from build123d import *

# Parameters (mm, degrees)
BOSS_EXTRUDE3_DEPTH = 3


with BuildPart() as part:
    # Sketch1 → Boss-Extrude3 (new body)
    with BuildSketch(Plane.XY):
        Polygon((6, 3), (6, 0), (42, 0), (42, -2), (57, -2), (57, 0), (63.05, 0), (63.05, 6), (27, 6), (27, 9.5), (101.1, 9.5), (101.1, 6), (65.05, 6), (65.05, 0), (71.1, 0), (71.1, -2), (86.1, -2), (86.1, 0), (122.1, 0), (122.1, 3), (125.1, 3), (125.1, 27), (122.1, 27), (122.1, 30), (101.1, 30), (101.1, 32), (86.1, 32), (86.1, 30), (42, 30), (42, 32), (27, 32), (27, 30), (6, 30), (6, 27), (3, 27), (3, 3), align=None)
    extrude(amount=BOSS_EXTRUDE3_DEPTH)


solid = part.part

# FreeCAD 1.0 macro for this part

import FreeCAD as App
import Part
import Sketcher

doc = App.newDocument("Part")
params = doc.addObject("Spreadsheet::Sheet", "Params")
for row, (alias, value) in enumerate([
    ("sketch1_width", "36 mm"),
    ("sketch1_width2", "15 mm"),
    ("sketch1_width3", "3 mm"),
    ("sketch1_height", "2 mm"),
    ("sketch1_height2", "6 mm"),
    ("pad1_length", "3 mm"),
], start=1):
    params.set(f"A{row}", alias)
    params.set(f"B{row}", "=" + value)
    params.setAlias(f"B{row}", alias)

body = doc.addObject("PartDesign::Body", "Body")

# Sketch on XY plane
sketch1 = doc.addObject("Sketcher::SketchObject", "Sketch")
body.addObject(sketch1)
sketch1.AttachmentSupport = (doc.XY_Plane, [""])
sketch1.MapMode = "FlatFace"
sketch1.addGeometry([
    Part.LineSegment(App.Vector(6, 3, 0), App.Vector(6, 0, 0)),  # 0
    Part.LineSegment(App.Vector(6, 0, 0), App.Vector(42, 0, 0)),  # 1
    Part.LineSegment(App.Vector(42, 0, 0), App.Vector(42, -2, 0)),  # 2
    Part.LineSegment(App.Vector(42, -2, 0), App.Vector(57, -2, 0)),  # 3
    Part.LineSegment(App.Vector(57, -2, 0), App.Vector(57, 0, 0)),  # 4
    Part.LineSegment(App.Vector(57, 0, 0), App.Vector(63, 0, 0)),  # 5
    Part.LineSegment(App.Vector(63, 0, 0), App.Vector(63, 6, 0)),  # 6
    Part.LineSegment(App.Vector(63, 6, 0), App.Vector(27, 6, 0)),  # 7
    Part.LineSegment(App.Vector(27, 6, 0), App.Vector(27, 9.5, 0)),  # 8
    Part.LineSegment(App.Vector(27, 9.5, 0), App.Vector(101.1, 9.5, 0)),  # 9
    Part.LineSegment(App.Vector(101.1, 9.5, 0), App.Vector(101.1, 6, 0)),  # 10
    Part.LineSegment(App.Vector(101.1, 6, 0), App.Vector(65, 6, 0)),  # 11
    Part.LineSegment(App.Vector(65, 6, 0), App.Vector(65, 0, 0)),  # 12
    Part.LineSegment(App.Vector(65, 0, 0), App.Vector(71.1, 0, 0)),  # 13
    Part.LineSegment(App.Vector(71.1, 0, 0), App.Vector(71.1, -2, 0)),  # 14
    Part.LineSegment(App.Vector(71.1, -2, 0), App.Vector(86.1, -2, 0)),  # 15
    Part.LineSegment(App.Vector(86.1, -2, 0), App.Vector(86.1, 0, 0)),  # 16
    Part.LineSegment(App.Vector(86.1, 0, 0), App.Vector(122.1, 0, 0)),  # 17
    Part.LineSegment(App.Vector(122.1, 0, 0), App.Vector(122.1, 3, 0)),  # 18
    Part.LineSegment(App.Vector(122.1, 3, 0), App.Vector(125.1, 3, 0)),  # 19
    Part.LineSegment(App.Vector(125.1, 3, 0), App.Vector(125.1, 27, 0)),  # 20
    Part.LineSegment(App.Vector(125.1, 27, 0), App.Vector(122.1, 27, 0)),  # 21
    Part.LineSegment(App.Vector(122.1, 27, 0), App.Vector(122.1, 30, 0)),  # 22
    Part.LineSegment(App.Vector(122.1, 30, 0), App.Vector(101.1, 30, 0)),  # 23
    Part.LineSegment(App.Vector(101.1, 30, 0), App.Vector(101.1, 32, 0)),  # 24
    Part.LineSegment(App.Vector(101.1, 32, 0), App.Vector(86.1, 32, 0)),  # 25
    Part.LineSegment(App.Vector(86.1, 32, 0), App.Vector(86.1, 30, 0)),  # 26
    Part.LineSegment(App.Vector(86.1, 30, 0), App.Vector(42, 30, 0)),  # 27
    Part.LineSegment(App.Vector(42, 30, 0), App.Vector(42, 32, 0)),  # 28
    Part.LineSegment(App.Vector(42, 32, 0), App.Vector(27, 32, 0)),  # 29
    Part.LineSegment(App.Vector(27, 32, 0), App.Vector(27, 30, 0)),  # 30
    Part.LineSegment(App.Vector(27, 30, 0), App.Vector(6, 30, 0)),  # 31
    Part.LineSegment(App.Vector(6, 30, 0), App.Vector(6, 27, 0)),  # 32
    Part.LineSegment(App.Vector(6, 27, 0), App.Vector(3, 27, 0)),  # 33
    Part.LineSegment(App.Vector(3, 27, 0), App.Vector(3, 3, 0)),  # 34
    Part.LineSegment(App.Vector(3, 3, 0), App.Vector(6, 3, 0)),  # 35
], False)
sketch1.addConstraint([
    Sketcher.Constraint("Coincident", 0, 2, 1, 1),
    Sketcher.Constraint("Coincident", 1, 2, 2, 1),
    Sketcher.Constraint("Coincident", 2, 2, 3, 1),
    Sketcher.Constraint("Coincident", 3, 2, 4, 1),
    Sketcher.Constraint("Coincident", 4, 2, 5, 1),
    Sketcher.Constraint("Coincident", 5, 2, 6, 1),
    Sketcher.Constraint("Coincident", 6, 2, 7, 1),
    Sketcher.Constraint("Coincident", 7, 2, 8, 1),
    Sketcher.Constraint("Coincident", 8, 2, 9, 1),
    Sketcher.Constraint("Coincident", 9, 2, 10, 1),
    Sketcher.Constraint("Coincident", 10, 2, 11, 1),
    Sketcher.Constraint("Coincident", 11, 2, 12, 1),
    Sketcher.Constraint("Coincident", 12, 2, 13, 1),
    Sketcher.Constraint("Coincident", 13, 2, 14, 1),
    Sketcher.Constraint("Coincident", 14, 2, 15, 1),
    Sketcher.Constraint("Coincident", 15, 2, 16, 1),
    Sketcher.Constraint("Coincident", 16, 2, 17, 1),
    Sketcher.Constraint("Coincident", 17, 2, 18, 1),
    Sketcher.Constraint("Coincident", 18, 2, 19, 1),
    Sketcher.Constraint("Coincident", 19, 2, 20, 1),
    Sketcher.Constraint("Coincident", 20, 2, 21, 1),
    Sketcher.Constraint("Coincident", 21, 2, 22, 1),
    Sketcher.Constraint("Coincident", 22, 2, 23, 1),
    Sketcher.Constraint("Coincident", 23, 2, 24, 1),
    Sketcher.Constraint("Coincident", 24, 2, 25, 1),
    Sketcher.Constraint("Coincident", 25, 2, 26, 1),
    Sketcher.Constraint("Coincident", 26, 2, 27, 1),
    Sketcher.Constraint("Coincident", 27, 2, 28, 1),
    Sketcher.Constraint("Coincident", 28, 2, 29, 1),
    Sketcher.Constraint("Coincident", 29, 2, 30, 1),
    Sketcher.Constraint("Coincident", 30, 2, 31, 1),
    Sketcher.Constraint("Coincident", 31, 2, 32, 1),
    Sketcher.Constraint("Coincident", 32, 2, 33, 1),
    Sketcher.Constraint("Coincident", 33, 2, 34, 1),
    Sketcher.Constraint("Coincident", 34, 2, 35, 1),
    Sketcher.Constraint("Coincident", 35, 2, 0, 1),
    Sketcher.Constraint("Vertical", 0),
    Sketcher.Constraint("Horizontal", 1),
    Sketcher.Constraint("Vertical", 2),
    Sketcher.Constraint("Horizontal", 3),
    Sketcher.Constraint("Vertical", 4),
    Sketcher.Constraint("Horizontal", 5),
    Sketcher.Constraint("Vertical", 6),
    Sketcher.Constraint("Horizontal", 7),
    Sketcher.Constraint("Vertical", 8),
    Sketcher.Constraint("Horizontal", 9),
    Sketcher.Constraint("Vertical", 10),
    Sketcher.Constraint("Horizontal", 11),
    Sketcher.Constraint("Vertical", 12),
    Sketcher.Constraint("Horizontal", 13),
    Sketcher.Constraint("Vertical", 14),
    Sketcher.Constraint("Horizontal", 15),
    Sketcher.Constraint("Vertical", 16),
    Sketcher.Constraint("Horizontal", 17),
    Sketcher.Constraint("Vertical", 18),
    Sketcher.Constraint("Horizontal", 19),
    Sketcher.Constraint("Vertical", 20),
    Sketcher.Constraint("Horizontal", 21),
    Sketcher.Constraint("Vertical", 22),
    Sketcher.Constraint("Horizontal", 23),
    Sketcher.Constraint("Vertical", 24),
    Sketcher.Constraint("Horizontal", 25),
    Sketcher.Constraint("Vertical", 26),
    Sketcher.Constraint("Horizontal", 27),
    Sketcher.Constraint("Vertical", 28),
    Sketcher.Constraint("Horizontal", 29),
    Sketcher.Constraint("Vertical", 30),
    Sketcher.Constraint("Horizontal", 31),
    Sketcher.Constraint("Vertical", 32),
    Sketcher.Constraint("Horizontal", 33),
    Sketcher.Constraint("Vertical", 34),
    Sketcher.Constraint("Horizontal", 35),
    Sketcher.Constraint("PointOnObject", 0, 2, -1),
    Sketcher.Constraint("PointOnObject", 4, 2, -1),
    Sketcher.Constraint("PointOnObject", 12, 2, -1),
    Sketcher.Constraint("PointOnObject", 16, 2, -1),
    Sketcher.Constraint("Horizontal", 7, 2, 10, 2),
    Sketcher.Constraint("Horizontal", 3, 2, 14, 2),
    Sketcher.Constraint("Horizontal", 23, 2, 26, 2),
    Sketcher.Constraint("Horizontal", 25, 2, 28, 2),
    Sketcher.Constraint("Horizontal", 27, 2, 30, 2),
    Sketcher.Constraint("Horizontal", 21, 2, 32, 2),
    Sketcher.Constraint("Horizontal", 19, 2, 34, 2),
    Sketcher.Constraint("Vertical", 18, 2, 21, 2),
    Sketcher.Constraint("Vertical", 10, 2, 23, 2),
    Sketcher.Constraint("Vertical", 16, 2, 25, 2),
    Sketcher.Constraint("Vertical", 2, 2, 27, 2),
    Sketcher.Constraint("Vertical", 8, 2, 29, 2),
    Sketcher.Constraint("Vertical", 0, 2, 31, 2),
    Sketcher.Constraint("Equal", 7, 11),
    Sketcher.Constraint("Equal", 5, 13),
    Sketcher.Constraint("Equal", 3, 15),
    Sketcher.Constraint("Equal", 1, 17),
    Sketcher.Constraint("Equal", 15, 25),
    Sketcher.Constraint("Equal", 21, 33),
    Sketcher.Constraint("Equal", 35, 0),
    Sketcher.Constraint("Equal", 18, 22),
    Sketcher.Constraint("Equal", 16, 24),
    Sketcher.Constraint("DistanceX", 1, 1, 1, 2, 36.0),
    Sketcher.Constraint("DistanceX", 3, 1, 3, 2, 15.0),
    Sketcher.Constraint("DistanceX", 19, 1, 19, 2, 3.0),
    Sketcher.Constraint("DistanceY", 2, 2, 2, 1, 2.0),
    Sketcher.Constraint("DistanceY", 6, 1, 6, 2, 6.0),
    Sketcher.Constraint("DistanceY", 20, 1, 20, 2, 24.0),
    Sketcher.Constraint("DistanceX", 9, 1, 9, 2, 74.1),
    Sketcher.Constraint("DistanceY", 8, 1, 8, 2, 3.5),
    Sketcher.Constraint("DistanceX", -1, 1, 0, 2, 6.0),
    Sketcher.Constraint("DistanceX", 6, 2, 11, 2, 2.0),
])
sketch1.setExpression("Constraints[98]", "Params.sketch1_width")
sketch1.setExpression("Constraints[99]", "Params.sketch1_width2")
sketch1.setExpression("Constraints[100]", "Params.sketch1_width3")
sketch1.setExpression("Constraints[101]", "Params.sketch1_height")
sketch1.setExpression("Constraints[102]", "Params.sketch1_height2")
pad1 = doc.addObject("PartDesign::Pad", "Pad")
body.addObject(pad1)
pad1.Profile = sketch1
pad1.setExpression("Length", "Params.pad1_length")

doc.recompute()
